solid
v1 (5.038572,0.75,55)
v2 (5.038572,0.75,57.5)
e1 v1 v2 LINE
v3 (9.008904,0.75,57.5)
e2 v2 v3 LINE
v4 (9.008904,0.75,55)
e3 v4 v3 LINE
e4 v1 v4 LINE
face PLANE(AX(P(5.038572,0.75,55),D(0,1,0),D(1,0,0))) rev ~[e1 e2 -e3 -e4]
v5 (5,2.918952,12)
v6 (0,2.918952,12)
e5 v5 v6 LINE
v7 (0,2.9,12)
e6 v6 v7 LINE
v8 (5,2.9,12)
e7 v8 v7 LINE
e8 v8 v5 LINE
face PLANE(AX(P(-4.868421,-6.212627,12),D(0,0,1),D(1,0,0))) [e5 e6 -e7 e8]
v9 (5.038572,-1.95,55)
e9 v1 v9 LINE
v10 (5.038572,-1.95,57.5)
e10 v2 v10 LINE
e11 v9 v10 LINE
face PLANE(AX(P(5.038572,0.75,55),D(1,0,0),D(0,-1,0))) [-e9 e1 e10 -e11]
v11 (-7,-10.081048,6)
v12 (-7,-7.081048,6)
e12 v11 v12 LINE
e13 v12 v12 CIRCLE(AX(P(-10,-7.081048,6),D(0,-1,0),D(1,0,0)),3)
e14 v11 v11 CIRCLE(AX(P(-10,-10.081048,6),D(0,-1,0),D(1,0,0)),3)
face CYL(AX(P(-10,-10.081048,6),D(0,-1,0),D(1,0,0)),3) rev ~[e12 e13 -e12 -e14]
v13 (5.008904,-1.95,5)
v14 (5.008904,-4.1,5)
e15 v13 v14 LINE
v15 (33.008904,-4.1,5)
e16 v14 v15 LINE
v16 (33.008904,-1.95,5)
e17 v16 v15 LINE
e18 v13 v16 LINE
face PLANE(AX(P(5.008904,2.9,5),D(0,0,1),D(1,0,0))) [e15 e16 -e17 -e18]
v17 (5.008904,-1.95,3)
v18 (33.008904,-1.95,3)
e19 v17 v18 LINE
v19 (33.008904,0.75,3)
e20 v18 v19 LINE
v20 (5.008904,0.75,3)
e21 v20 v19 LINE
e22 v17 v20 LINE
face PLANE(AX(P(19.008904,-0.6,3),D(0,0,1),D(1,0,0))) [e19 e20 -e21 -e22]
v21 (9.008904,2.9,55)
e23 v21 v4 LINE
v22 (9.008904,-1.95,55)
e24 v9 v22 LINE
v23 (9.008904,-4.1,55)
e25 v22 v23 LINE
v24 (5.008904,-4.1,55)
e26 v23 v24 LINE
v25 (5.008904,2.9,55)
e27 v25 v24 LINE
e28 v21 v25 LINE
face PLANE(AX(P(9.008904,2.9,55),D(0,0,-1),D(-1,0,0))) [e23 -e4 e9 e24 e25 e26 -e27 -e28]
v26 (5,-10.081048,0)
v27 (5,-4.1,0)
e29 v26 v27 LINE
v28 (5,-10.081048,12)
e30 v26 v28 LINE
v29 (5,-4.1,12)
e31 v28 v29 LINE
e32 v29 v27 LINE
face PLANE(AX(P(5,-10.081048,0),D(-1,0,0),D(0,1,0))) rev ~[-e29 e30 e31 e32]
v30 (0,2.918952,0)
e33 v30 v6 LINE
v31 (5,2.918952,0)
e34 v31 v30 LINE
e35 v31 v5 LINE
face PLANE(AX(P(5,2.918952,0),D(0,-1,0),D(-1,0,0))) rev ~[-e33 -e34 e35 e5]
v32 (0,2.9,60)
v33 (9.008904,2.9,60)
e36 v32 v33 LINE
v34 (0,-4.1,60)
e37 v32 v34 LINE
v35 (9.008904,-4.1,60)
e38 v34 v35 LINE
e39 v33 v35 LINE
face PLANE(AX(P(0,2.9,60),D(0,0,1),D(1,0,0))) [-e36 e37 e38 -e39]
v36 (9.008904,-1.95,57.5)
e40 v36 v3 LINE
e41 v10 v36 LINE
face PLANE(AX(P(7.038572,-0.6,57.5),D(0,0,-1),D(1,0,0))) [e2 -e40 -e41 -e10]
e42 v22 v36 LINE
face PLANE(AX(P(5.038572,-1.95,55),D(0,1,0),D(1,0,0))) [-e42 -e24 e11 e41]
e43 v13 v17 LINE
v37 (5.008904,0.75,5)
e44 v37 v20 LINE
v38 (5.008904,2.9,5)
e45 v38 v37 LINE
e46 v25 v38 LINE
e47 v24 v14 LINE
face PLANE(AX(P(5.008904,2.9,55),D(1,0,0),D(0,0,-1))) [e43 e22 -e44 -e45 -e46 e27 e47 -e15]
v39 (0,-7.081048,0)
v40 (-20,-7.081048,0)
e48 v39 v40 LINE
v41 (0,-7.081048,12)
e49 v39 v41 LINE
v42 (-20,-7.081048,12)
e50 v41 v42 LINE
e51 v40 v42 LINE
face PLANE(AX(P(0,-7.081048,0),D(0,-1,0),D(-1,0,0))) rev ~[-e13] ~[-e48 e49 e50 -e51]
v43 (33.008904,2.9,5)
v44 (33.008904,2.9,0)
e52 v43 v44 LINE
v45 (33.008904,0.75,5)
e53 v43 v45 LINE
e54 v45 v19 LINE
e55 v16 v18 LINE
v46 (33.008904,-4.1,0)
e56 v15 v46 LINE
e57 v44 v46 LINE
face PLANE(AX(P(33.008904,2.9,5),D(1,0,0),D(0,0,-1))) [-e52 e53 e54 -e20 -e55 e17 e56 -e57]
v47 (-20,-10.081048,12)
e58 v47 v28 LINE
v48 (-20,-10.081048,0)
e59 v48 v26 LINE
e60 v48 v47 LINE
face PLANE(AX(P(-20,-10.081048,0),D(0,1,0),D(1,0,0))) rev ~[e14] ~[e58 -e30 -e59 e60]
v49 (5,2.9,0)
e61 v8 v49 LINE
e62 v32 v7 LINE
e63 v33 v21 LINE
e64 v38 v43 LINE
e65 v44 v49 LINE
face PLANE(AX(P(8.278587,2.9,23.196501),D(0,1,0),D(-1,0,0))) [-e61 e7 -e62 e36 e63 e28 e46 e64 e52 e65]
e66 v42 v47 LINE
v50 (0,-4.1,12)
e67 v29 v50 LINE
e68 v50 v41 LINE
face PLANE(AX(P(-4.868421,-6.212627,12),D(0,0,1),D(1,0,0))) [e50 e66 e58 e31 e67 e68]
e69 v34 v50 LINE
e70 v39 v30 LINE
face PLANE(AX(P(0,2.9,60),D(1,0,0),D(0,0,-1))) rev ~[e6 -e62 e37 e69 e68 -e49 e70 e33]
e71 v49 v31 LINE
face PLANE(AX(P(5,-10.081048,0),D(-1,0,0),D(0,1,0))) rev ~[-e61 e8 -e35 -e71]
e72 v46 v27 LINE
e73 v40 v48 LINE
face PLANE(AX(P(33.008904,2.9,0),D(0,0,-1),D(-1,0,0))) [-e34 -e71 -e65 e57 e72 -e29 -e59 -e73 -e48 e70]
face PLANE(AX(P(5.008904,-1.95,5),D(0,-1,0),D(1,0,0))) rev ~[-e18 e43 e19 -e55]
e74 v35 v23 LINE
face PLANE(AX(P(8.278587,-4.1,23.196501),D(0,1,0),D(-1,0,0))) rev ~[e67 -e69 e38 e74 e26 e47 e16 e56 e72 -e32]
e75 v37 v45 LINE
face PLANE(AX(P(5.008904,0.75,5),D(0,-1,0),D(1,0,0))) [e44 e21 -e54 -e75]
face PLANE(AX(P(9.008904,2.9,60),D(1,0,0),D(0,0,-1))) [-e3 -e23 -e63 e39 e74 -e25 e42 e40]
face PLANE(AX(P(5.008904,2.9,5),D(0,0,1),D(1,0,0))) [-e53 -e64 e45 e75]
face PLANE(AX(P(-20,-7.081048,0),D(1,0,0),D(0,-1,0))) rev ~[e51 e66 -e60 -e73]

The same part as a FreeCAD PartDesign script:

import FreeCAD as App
import Part
import Sketcher

doc = App.newDocument("Part")
body = doc.addObject("PartDesign::Body", "Body")

# Sketch on XY plane
sketch1 = doc.addObject("Sketcher::SketchObject", "Sketch")
body.addObject(sketch1)
sketch1.AttachmentSupport = (doc.XY_Plane, [""])
sketch1.MapMode = "FlatFace"
sketch1.addGeometry([
    Part.LineSegment(App.Vector(-20, -10.1, 0), App.Vector(5, -10.1, 0)),  # 0
    Part.LineSegment(App.Vector(5, -10.1, 0), App.Vector(5, 2.9, 0)),  # 1
    Part.LineSegment(App.Vector(5, 2.9, 0), App.Vector(0, 2.9, 0)),  # 2
    Part.LineSegment(App.Vector(0, 2.9, 0), App.Vector(0, -7.1, 0)),  # 3
    Part.LineSegment(App.Vector(0, -7.1, 0), App.Vector(-20, -7.1, 0)),  # 4
    Part.LineSegment(App.Vector(-20, -7.1, 0), App.Vector(-20, -10.1, 0)),  # 5
], False)
sketch1.addConstraint([
    Sketcher.Constraint("Coincident", 0, 2, 1, 1),
    Sketcher.Constraint("Coincident", 1, 2, 2, 1),
    Sketcher.Constraint("Coincident", 2, 2, 3, 1),
    Sketcher.Constraint("Coincident", 3, 2, 4, 1),
    Sketcher.Constraint("Coincident", 4, 2, 5, 1),
    Sketcher.Constraint("Coincident", 5, 2, 0, 1),
    Sketcher.Constraint("Horizontal", 0),
    Sketcher.Constraint("Vertical", 1),
    Sketcher.Constraint("Horizontal", 2),
    Sketcher.Constraint("Vertical", 3),
    Sketcher.Constraint("Horizontal", 4),
    Sketcher.Constraint("Vertical", 5),
    Sketcher.Constraint("PointOnObject", 2, 2, -2),
    Sketcher.Constraint("DistanceX", 0, 1, 0, 2, 25.0),
    Sketcher.Constraint("DistanceX", 2, 2, 2, 1, 5.0),
    Sketcher.Constraint("DistanceY", 1, 1, 1, 2, 13.0),
    Sketcher.Constraint("DistanceY", 3, 2, 3, 1, 10.0),
    Sketcher.Constraint("DistanceY", -1, 1, 1, 2, 2.918952),
])
pad1 = doc.addObject("PartDesign::Pad", "Pad")
body.addObject(pad1)
pad1.Profile = sketch1
pad1.Length = 12

# Sketch on XZ plane
sketch2 = doc.addObject("Sketcher::SketchObject", "Sketch001")
body.addObject(sketch2)
sketch2.AttachmentSupport = (doc.XZ_Plane, [""])
sketch2.MapMode = "FlatFace"
sketch2.AttachmentOffset = App.Placement(App.Vector(0, 0, 10.081048), App.Rotation())
sketch2.addGeometry(Part.Circle(App.Vector(-10, 6, 0), App.Vector(0, 0, 1), 3), False)
sketch2.addConstraint([
    Sketcher.Constraint("Diameter", 0, 6.0),
    Sketcher.Constraint("DistanceX", 0, 3, -1, 1, 10.0),
    Sketcher.Constraint("DistanceY", -1, 1, 0, 3, 6.0),
])
pocket1 = doc.addObject("PartDesign::Pocket", "Pocket")
body.addObject(pocket1)
pocket1.Profile = sketch2
pocket1.Type = "ThroughAll"

# Sketch on XZ plane
sketch3 = doc.addObject("Sketcher::SketchObject", "Sketch002")
body.addObject(sketch3)
sketch3.AttachmentSupport = (doc.XZ_Plane, [""])
sketch3.MapMode = "FlatFace"
sketch3.AttachmentOffset = App.Placement(App.Vector(0, 0, -2.9), App.Rotation())
sketch3.addGeometry([
    Part.LineSegment(App.Vector(33, 0, 0), App.Vector(33, 5, 0)),  # 0
    Part.LineSegment(App.Vector(33, 5, 0), App.Vector(5, 5, 0)),  # 1
    Part.LineSegment(App.Vector(5, 5, 0), App.Vector(5, 55, 0)),  # 2
    Part.LineSegment(App.Vector(5, 55, 0), App.Vector(9, 55, 0)),  # 3
    Part.LineSegment(App.Vector(9, 55, 0), App.Vector(9, 60, 0)),  # 4
    Part.LineSegment(App.Vector(9, 60, 0), App.Vector(0, 60, 0)),  # 5
    Part.LineSegment(App.Vector(0, 60, 0), App.Vector(0, 0, 0)),  # 6
    Part.LineSegment(App.Vector(0, 0, 0), App.Vector(33, 0, 0)),  # 7
], False)
sketch3.addConstraint([
    Sketcher.Constraint("Coincident", 0, 2, 1, 1),
    Sketcher.Constraint("Coincident", 1, 2, 2, 1),
    Sketcher.Constraint("Coincident", 2, 2, 3, 1),
    Sketcher.Constraint("Coincident", 3, 2, 4, 1),
    Sketcher.Constraint("Coincident", 4, 2, 5, 1),
    Sketcher.Constraint("Coincident", 5, 2, 6, 1),
    Sketcher.Constraint("Coincident", 6, 2, 7, 1),
    Sketcher.Constraint("Coincident", 7, 2, 0, 1),
    Sketcher.Constraint("Vertical", 0),
    Sketcher.Constraint("Horizontal", 1),
    Sketcher.Constraint("Vertical", 2),
    Sketcher.Constraint("Horizontal", 3),
    Sketcher.Constraint("Vertical", 4),
    Sketcher.Constraint("Horizontal", 5),
    Sketcher.Constraint("Vertical", 6),
    Sketcher.Constraint("Horizontal", 7),
    Sketcher.Constraint("Coincident", 6, 2, -1, 1),
    Sketcher.Constraint("Equal", 0, 4),
    Sketcher.Constraint("DistanceX", 1, 2, 1, 1, 28.0),
    Sketcher.Constraint("DistanceX", 3, 1, 3, 2, 4.0),
    Sketcher.Constraint("DistanceY", 0, 1, 0, 2, 5.0),
    Sketcher.Constraint("DistanceY", 2, 1, 2, 2, 50.0),
    Sketcher.Constraint("DistanceX", 5, 2, 5, 1, 9.008904),
])
pad2 = doc.addObject("PartDesign::Pad", "Pad001")
body.addObject(pad2)
pad2.Profile = sketch3
pad2.Length = 7

# Sketch on XY plane
sketch4 = doc.addObject("Sketcher::SketchObject", "Sketch003")
body.addObject(sketch4)
sketch4.AttachmentSupport = (doc.XY_Plane, [""])
sketch4.MapMode = "FlatFace"
sketch4.AttachmentOffset = App.Placement(App.Vector(0, 0, 5), App.Rotation())
sketch4.addGeometry([
    Part.LineSegment(App.Vector(5, 0.8, 0), App.Vector(5, -1.9, 0)),
    Part.LineSegment(App.Vector(5, -1.9, 0), App.Vector(33, -1.9, 0)),
    Part.LineSegment(App.Vector(33, -1.9, 0), App.Vector(33, 0.8, 0)),
    Part.LineSegment(App.Vector(33, 0.8, 0), App.Vector(5, 0.8, 0)),
], False)
sketch4.addConstraint([
    Sketcher.Constraint("Coincident", 0, 2, 1, 1),
    Sketcher.Constraint("Coincident", 1, 2, 2, 1),
    Sketcher.Constraint("Coincident", 2, 2, 3, 1),
    Sketcher.Constraint("Coincident", 3, 2, 0, 1),
    Sketcher.Constraint("Vertical", 0),
    Sketcher.Constraint("Horizontal", 1),
    Sketcher.Constraint("Vertical", 2),
    Sketcher.Constraint("Horizontal", 3),
    Sketcher.Constraint("DistanceX", 1, 1, 1, 2, 28.0),
    Sketcher.Constraint("DistanceY", 0, 2, 0, 1, 2.7),
    Sketcher.Constraint("DistanceY", 0, 2, -1, 1, 1.95),
    Sketcher.Constraint("DistanceX", -1, 1, 0, 2, 5.008904),
])
pocket2 = doc.addObject("PartDesign::Pocket", "Pocket001")
body.addObject(pocket2)
pocket2.Profile = sketch4
pocket2.Length = 2

# Sketch on XY plane
sketch5 = doc.addObject("Sketcher::SketchObject", "Sketch004")
body.addObject(sketch5)
sketch5.AttachmentSupport = (doc.XY_Plane, [""])
sketch5.MapMode = "FlatFace"
sketch5.AttachmentOffset = App.Placement(App.Vector(0, 0, 55), App.Rotation())
sketch5.addGeometry([
    Part.LineSegment(App.Vector(5, -1.9, 0), App.Vector(5, 0.8, 0)),
    Part.LineSegment(App.Vector(5, 0.8, 0), App.Vector(9, 0.8, 0)),
    Part.LineSegment(App.Vector(9, 0.8, 0), App.Vector(9, -1.9, 0)),
    Part.LineSegment(App.Vector(9, -1.9, 0), App.Vector(5, -1.9, 0)),
], False)
sketch5.addConstraint([
    Sketcher.Constraint("Coincident", 0, 2, 1, 1),
    Sketcher.Constraint("Coincident", 1, 2, 2, 1),
    Sketcher.Constraint("Coincident", 2, 2, 3, 1),
    Sketcher.Constraint("Coincident", 3, 2, 0, 1),
    Sketcher.Constraint("Vertical", 0),
    Sketcher.Constraint("Horizontal", 1),
    Sketcher.Constraint("Vertical", 2),
    Sketcher.Constraint("Horizontal", 3),
    Sketcher.Constraint("DistanceX", 1, 1, 1, 2, 4.0),
    Sketcher.Constraint("DistanceY", 0, 1, 0, 2, 2.7),
    Sketcher.Constraint("DistanceY", -1, 1, 0, 2, 0.75),
    Sketcher.Constraint("DistanceX", -1, 1, 0, 2, 5.038572),
])
pocket3 = doc.addObject("PartDesign::Pocket", "Pocket002")
body.addObject(pocket3)
pocket3.Profile = sketch5
pocket3.Length = 2.5
pocket3.Reversed = True

doc.recompute()
